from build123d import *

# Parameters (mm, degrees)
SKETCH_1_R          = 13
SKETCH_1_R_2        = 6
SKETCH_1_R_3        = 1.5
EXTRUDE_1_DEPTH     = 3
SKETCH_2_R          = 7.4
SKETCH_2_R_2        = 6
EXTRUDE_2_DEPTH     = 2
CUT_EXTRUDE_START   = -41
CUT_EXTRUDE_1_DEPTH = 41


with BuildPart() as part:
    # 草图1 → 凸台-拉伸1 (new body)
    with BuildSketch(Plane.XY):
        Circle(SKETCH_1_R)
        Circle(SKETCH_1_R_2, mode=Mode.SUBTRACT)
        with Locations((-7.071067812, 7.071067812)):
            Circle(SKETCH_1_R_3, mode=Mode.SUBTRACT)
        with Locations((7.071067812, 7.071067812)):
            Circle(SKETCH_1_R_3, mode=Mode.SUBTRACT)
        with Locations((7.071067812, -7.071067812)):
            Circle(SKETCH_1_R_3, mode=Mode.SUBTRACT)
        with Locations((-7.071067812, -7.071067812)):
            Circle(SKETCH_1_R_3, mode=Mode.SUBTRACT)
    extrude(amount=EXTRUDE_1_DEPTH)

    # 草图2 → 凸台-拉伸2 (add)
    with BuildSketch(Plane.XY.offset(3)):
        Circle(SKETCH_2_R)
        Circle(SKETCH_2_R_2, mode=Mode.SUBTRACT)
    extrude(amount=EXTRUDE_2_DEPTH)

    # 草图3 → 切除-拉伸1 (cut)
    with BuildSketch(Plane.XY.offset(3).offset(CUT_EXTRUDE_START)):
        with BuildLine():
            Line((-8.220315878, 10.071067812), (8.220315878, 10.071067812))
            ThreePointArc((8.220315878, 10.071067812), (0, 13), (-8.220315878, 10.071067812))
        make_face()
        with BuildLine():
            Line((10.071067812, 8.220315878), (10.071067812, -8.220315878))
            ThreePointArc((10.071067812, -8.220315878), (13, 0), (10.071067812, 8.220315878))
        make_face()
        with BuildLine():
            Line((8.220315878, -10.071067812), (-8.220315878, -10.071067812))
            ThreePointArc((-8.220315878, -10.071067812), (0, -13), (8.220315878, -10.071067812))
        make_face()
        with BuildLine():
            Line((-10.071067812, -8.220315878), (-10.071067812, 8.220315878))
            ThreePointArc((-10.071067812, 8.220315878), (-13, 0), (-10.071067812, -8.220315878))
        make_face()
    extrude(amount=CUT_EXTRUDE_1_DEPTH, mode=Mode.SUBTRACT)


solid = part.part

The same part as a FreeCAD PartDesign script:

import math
import FreeCAD as App
import Part
import Sketcher
Q = App.Units.Quantity

doc = App.newDocument("Part")
body = doc.addObject("PartDesign::Body", "Body")

sketch1 = body.newObject("Sketcher::SketchObject", "Sketch")
sketch1.AttachmentSupport = (doc.getObject("XY_Plane"), [""])
sketch1.MapMode = "FlatFace"
sketch1.addGeometry([
    Part.Circle(App.Vector(0, 0, 0), App.Vector(0, 0, 1), 13),
    Part.Circle(App.Vector(-7.1, -7.1, 0), App.Vector(0, 0, 1), 1.5),
    Part.Circle(App.Vector(7.1, -7.1, 0), App.Vector(0, 0, 1), 1.5),
    Part.Circle(App.Vector(-7.1, 7.1, 0), App.Vector(0, 0, 1), 1.5),
    Part.Circle(App.Vector(0, 0, 0), App.Vector(0, 0, 1), 6),
    Part.Circle(App.Vector(7.1, 7.1, 0), App.Vector(0, 0, 1), 1.5),
], False)
sketch1.addConstraint([
    Sketcher.Constraint("Coincident", 0, 3, -1, 1),
    Sketcher.Constraint("Coincident", 4, 3, -1, 1),
    Sketcher.Constraint("Equal", 1, 2),
    Sketcher.Constraint("Equal", 2, 3),
    Sketcher.Constraint("Equal", 3, 5),
    Sketcher.Constraint("Symmetric", 2, 3, 3, 3, -1, 1),
    Sketcher.Constraint("Symmetric", 1, 3, 5, 3, -1, 1),
    Sketcher.Constraint("Symmetric", 1, 3, 2, 3, -2),
    Sketcher.Constraint("Diameter", 0, Q("26 mm")),
    Sketcher.Constraint("Diameter", 1, Q("3 mm")),
    Sketcher.Constraint("Diameter", 4, Q("12 mm")),
    Sketcher.Constraint("DistanceX", 1, 3, -1, 1, Q("7.071068 mm")),
    Sketcher.Constraint("DistanceY", 1, 3, -1, 1, Q("7.071068 mm")),
])
pad1 = body.newObject("PartDesign::Pad", "Pad")
pad1.Profile = sketch1
pad1.Length = 3

sketch2 = body.newObject("Sketcher::SketchObject", "Sketch001")
sketch2.AttachmentSupport = (doc.getObject("XY_Plane"), [""])
sketch2.MapMode = "FlatFace"
sketch2.AttachmentOffset = App.Placement(App.Vector(0, 0, 3), App.Rotation())
sketch2.addGeometry([
    Part.Circle(App.Vector(0, 0, 0), App.Vector(0, 0, 1), 7),
    Part.Circle(App.Vector(0, 0, 0), App.Vector(0, 0, 1), 6),
], False)
sketch2.addConstraint([
    Sketcher.Constraint("Coincident", 0, 3, -1, 1),
    Sketcher.Constraint("Coincident", 1, 3, -1, 1),
    Sketcher.Constraint("Diameter", 1, Q("12 mm")),
    Sketcher.Constraint("Diameter", 0, Q("14.8 mm")),
])
pad2 = body.newObject("PartDesign::Pad", "Pad001")
pad2.Profile = sketch2
pad2.Length = 2

sketch3 = body.newObject("Sketcher::SketchObject", "Sketch002")
sketch3.AttachmentSupport = (doc.getObject("XY_Plane"), [""])
sketch3.MapMode = "FlatFace"
sketch3.AttachmentOffset = App.Placement(App.Vector(0, 0, -38), App.Rotation())
sketch3.addGeometry([
    Part.LineSegment(App.Vector(-8, 10, 0), App.Vector(8, 10, 0)),
    Part.ArcOfCircle(Part.Circle(App.Vector(0, 0, 0), App.Vector(0, 0, 1), 13), math.radians(51), math.radians(129)),
    Part.LineSegment(App.Vector(10, 8, 0), App.Vector(10, -8, 0)),
    Part.ArcOfCircle(Part.Circle(App.Vector(0, 0, 0), App.Vector(0, 0, 1), 13), math.radians(-39), math.radians(39)),
    Part.LineSegment(App.Vector(8, -10, 0), App.Vector(-8, -10, 0)),
    Part.ArcOfCircle(Part.Circle(App.Vector(0, 0, 0), App.Vector(0, 0, 1), 13), math.radians(-129), math.radians(-51)),
    Part.LineSegment(App.Vector(-10, -8, 0), App.Vector(-10, 8, 0)),
    Part.ArcOfCircle(Part.Circle(App.Vector(0, 0, 0), App.Vector(0, 0, 1), 13), math.radians(141), math.radians(219)),
], False)
sketch3.addConstraint([
    Sketcher.Constraint("Coincident", 0, 1, 1, 2),
    Sketcher.Constraint("Coincident", 1, 1, 0, 2),
    Sketcher.Constraint("Coincident", 2, 1, 3, 2),
    Sketcher.Constraint("Coincident", 3, 1, 2, 2),
    Sketcher.Constraint("Coincident", 4, 1, 5, 2),
    Sketcher.Constraint("Coincident", 5, 1, 4, 2),
    Sketcher.Constraint("Coincident", 6, 1, 7, 2),
    Sketcher.Constraint("Coincident", 7, 1, 6, 2),
    Sketcher.Constraint("Horizontal", 0),
    Sketcher.Constraint("Vertical", 2),
    Sketcher.Constraint("Horizontal", 4),
    Sketcher.Constraint("Vertical", 6),
    Sketcher.Constraint("Coincident", 1, 3, -1, 1),
    Sketcher.Constraint("Coincident", 3, 3, -1, 1),
    Sketcher.Constraint("Coincident", 5, 3, -1, 1),
    Sketcher.Constraint("Coincident", 7, 3, -1, 1),
    Sketcher.Constraint("Equal", 1, 3),
    Sketcher.Constraint("Equal", 3, 5),
    Sketcher.Constraint("Equal", 5, 7),
    Sketcher.Constraint("Horizontal", 3, 1, 6, 1),
    Sketcher.Constraint("Vertical", 1, 1, 4, 1),
    Sketcher.Constraint("Equal", 4, 2),
    Sketcher.Constraint("Radius", 1, Q("13 mm")),
    Sketcher.Constraint("DistanceX", 0, 1, 0, 2, Q("16.440632 mm")),
])
pocket1 = body.newObject("PartDesign::Pocket", "Pocket")
pocket1.Profile = sketch3
pocket1.Length = 41
pocket1.Reversed = True

doc.recompute()
